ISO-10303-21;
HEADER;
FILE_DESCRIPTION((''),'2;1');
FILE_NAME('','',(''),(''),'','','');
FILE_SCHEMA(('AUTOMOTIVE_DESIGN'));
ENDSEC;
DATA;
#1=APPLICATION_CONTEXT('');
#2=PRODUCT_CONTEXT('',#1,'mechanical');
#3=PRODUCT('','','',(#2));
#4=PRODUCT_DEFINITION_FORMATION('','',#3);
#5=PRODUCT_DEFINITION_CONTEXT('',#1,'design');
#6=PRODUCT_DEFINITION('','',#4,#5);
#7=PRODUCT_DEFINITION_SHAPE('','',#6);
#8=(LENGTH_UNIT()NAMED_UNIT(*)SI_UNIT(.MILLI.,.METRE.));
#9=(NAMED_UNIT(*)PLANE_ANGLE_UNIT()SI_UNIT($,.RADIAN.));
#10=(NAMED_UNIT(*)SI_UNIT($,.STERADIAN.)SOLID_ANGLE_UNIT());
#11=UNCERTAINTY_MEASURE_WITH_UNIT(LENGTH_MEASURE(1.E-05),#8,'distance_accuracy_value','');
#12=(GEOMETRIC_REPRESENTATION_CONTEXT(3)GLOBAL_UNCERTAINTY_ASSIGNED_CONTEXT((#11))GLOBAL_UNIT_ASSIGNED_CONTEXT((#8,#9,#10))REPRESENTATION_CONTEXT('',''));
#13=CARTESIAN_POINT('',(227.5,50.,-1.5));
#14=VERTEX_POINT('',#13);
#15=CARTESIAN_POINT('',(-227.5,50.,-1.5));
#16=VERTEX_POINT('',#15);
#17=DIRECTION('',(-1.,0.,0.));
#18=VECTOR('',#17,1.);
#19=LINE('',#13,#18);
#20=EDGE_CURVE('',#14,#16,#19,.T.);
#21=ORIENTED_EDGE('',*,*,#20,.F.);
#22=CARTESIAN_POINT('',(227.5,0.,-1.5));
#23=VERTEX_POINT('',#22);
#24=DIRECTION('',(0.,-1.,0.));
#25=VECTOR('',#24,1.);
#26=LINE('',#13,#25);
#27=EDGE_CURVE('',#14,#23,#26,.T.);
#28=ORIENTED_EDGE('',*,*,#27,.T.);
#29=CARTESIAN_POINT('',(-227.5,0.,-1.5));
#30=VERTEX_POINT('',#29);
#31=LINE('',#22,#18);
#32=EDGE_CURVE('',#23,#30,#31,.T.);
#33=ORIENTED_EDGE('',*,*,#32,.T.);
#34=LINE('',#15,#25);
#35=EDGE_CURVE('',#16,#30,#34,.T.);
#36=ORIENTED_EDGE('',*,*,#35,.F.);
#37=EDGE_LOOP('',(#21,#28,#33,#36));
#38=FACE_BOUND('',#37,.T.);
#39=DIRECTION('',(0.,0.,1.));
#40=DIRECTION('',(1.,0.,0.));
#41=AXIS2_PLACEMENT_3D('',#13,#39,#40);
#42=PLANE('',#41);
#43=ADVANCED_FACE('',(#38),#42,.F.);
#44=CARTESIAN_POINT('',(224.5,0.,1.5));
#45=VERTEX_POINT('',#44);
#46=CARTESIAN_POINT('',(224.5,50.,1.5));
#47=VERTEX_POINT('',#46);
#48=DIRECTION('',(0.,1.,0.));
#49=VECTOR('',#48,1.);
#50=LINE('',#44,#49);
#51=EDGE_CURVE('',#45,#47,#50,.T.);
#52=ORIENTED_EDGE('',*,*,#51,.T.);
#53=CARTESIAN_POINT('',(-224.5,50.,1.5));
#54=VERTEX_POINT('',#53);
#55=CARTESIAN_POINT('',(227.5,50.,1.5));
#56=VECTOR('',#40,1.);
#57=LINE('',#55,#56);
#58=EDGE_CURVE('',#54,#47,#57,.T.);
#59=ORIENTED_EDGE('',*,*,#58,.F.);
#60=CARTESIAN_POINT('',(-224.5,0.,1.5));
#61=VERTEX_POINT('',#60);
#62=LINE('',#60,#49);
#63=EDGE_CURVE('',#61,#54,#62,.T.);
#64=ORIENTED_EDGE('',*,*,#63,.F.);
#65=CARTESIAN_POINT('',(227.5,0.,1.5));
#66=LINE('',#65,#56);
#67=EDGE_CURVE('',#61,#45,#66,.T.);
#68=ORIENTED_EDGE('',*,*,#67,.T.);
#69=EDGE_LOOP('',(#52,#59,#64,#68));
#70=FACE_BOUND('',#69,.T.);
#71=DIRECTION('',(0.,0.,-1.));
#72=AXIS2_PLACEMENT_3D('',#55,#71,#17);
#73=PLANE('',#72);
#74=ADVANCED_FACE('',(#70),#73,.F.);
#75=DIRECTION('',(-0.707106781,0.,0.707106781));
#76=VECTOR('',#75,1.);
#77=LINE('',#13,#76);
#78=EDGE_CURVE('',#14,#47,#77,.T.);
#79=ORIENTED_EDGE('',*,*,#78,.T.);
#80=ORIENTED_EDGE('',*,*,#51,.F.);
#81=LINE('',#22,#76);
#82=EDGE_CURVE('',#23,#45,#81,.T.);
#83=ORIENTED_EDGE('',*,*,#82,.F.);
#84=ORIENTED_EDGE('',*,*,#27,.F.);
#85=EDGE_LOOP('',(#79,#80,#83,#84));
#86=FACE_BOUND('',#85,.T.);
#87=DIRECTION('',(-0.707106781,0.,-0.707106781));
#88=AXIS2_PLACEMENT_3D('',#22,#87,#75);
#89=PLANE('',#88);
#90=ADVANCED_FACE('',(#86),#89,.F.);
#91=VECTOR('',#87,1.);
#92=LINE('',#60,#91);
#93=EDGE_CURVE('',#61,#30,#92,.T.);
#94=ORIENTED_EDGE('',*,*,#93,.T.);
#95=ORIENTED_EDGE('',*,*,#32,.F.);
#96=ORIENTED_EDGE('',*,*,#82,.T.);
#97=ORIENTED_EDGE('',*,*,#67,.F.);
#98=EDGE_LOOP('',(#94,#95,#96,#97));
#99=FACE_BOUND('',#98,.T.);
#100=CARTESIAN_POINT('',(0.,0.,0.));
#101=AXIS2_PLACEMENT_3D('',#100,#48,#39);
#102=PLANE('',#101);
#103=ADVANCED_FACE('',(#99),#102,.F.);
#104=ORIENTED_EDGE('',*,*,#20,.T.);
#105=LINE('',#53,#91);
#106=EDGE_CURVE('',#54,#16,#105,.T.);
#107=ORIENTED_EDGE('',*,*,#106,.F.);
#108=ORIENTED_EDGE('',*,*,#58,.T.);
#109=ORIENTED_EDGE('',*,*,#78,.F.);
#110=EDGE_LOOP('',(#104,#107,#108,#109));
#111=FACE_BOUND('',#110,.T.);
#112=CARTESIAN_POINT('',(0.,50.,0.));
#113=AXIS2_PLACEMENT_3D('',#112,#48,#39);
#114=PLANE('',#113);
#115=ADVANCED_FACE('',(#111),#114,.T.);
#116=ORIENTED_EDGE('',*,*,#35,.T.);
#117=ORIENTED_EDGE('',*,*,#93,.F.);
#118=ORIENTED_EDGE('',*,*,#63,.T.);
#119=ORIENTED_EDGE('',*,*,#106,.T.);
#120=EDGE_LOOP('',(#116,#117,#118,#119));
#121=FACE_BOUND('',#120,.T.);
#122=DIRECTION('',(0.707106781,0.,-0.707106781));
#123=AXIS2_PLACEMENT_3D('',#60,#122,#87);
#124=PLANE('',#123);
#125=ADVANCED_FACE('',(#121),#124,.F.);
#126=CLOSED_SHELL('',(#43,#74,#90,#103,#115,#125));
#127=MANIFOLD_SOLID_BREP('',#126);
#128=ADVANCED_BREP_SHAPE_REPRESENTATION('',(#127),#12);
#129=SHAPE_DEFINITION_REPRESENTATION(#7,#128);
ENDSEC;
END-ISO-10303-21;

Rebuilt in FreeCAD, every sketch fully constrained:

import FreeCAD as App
import Part
import Sketcher
from FreeCAD import Vector

doc = App.newDocument("Part")
params = doc.addObject("Spreadsheet::Sheet", "Params")
for row, (alias, value) in enumerate([
    ("sketch1_width", "455 mm"),
    ("sketch1_height", "3 mm"),
    ("pad1_length", "50 mm"),
    ("sketch2_width", "3 mm"),
], start=1):
    params.set(f"A{row}", alias)
    params.set(f"B{row}", "=" + value)
    params.setAlias(f"B{row}", alias)

body = doc.addObject("PartDesign::Body", "Body")

# Sketch on XZ plane
sketch1 = body.newObject("Sketcher::SketchObject", "Sketch")
sketch1.AttachmentSupport = (doc.getObject("XZ_Plane"), [""])
sketch1.MapMode = "FlatFace"
sketch1.addGeometry([
    Part.LineSegment(Vector(-227.5, -1.5, 0), Vector(-227.5, 1.5, 0)),
    Part.LineSegment(Vector(-227.5, 1.5, 0), Vector(227.5, 1.5, 0)),
    Part.LineSegment(Vector(227.5, 1.5, 0), Vector(227.5, -1.5, 0)),
    Part.LineSegment(Vector(227.5, -1.5, 0), Vector(-227.5, -1.5, 0)),
], False)
sketch1.addConstraint([
    Sketcher.Constraint("Coincident", 0, 2, 1, 1),
    Sketcher.Constraint("Coincident", 1, 2, 2, 1),
    Sketcher.Constraint("Coincident", 2, 2, 3, 1),
    Sketcher.Constraint("Coincident", 3, 2, 0, 1),
    Sketcher.Constraint("Vertical", 0),
    Sketcher.Constraint("Horizontal", 1),
    Sketcher.Constraint("Vertical", 2),
    Sketcher.Constraint("Horizontal", 3),
    Sketcher.Constraint("Symmetric", 0, 2, 2, 2, -1, 1),
    Sketcher.Constraint("DistanceX", 1, 1, 1, 2, 455.0),
    Sketcher.Constraint("DistanceY", 0, 1, 0, 2, 3.0),
])
sketch1.setExpression("Constraints[9]", "Params.sketch1_width")
sketch1.setExpression("Constraints[10]", "Params.sketch1_height")
pad1 = body.newObject("PartDesign::Pad", "Pad")
pad1.Profile = sketch1
pad1.setExpression("Length", "Params.pad1_length")
pad1.Reversed = True

# Sketch on XZ plane
sketch2 = body.newObject("Sketcher::SketchObject", "Sketch001")
sketch2.AttachmentSupport = (doc.getObject("XZ_Plane"), [""])
sketch2.MapMode = "FlatFace"
sketch2.AttachmentOffset = App.Placement(Vector(0, 0, -50), App.Rotation())
sketch2.addGeometry([
    Part.LineSegment(Vector(-227.5, -1.5, 0), Vector(-227.5, 1.5, 0)),  # 0
    Part.LineSegment(Vector(-227.5, 1.5, 0), Vector(-224.5, 1.5, 0)),  # 1
    Part.LineSegment(Vector(-224.5, 1.5, 0), Vector(-227.5, -1.5, 0)),  # 2
    Part.LineSegment(Vector(227.5, 1.5, 0), Vector(227.5, -1.5, 0)),  # 3
    Part.LineSegment(Vector(227.5, -1.5, 0), Vector(224.5, 1.5, 0)),  # 4
    Part.LineSegment(Vector(224.5, 1.5, 0), Vector(227.5, 1.5, 0)),  # 5
], False)
sketch2.addConstraint([
    Sketcher.Constraint("Coincident", 0, 2, 1, 1),
    Sketcher.Constraint("Coincident", 1, 2, 2, 1),
    Sketcher.Constraint("Coincident", 2, 2, 0, 1),
    Sketcher.Constraint("Coincident", 3, 2, 4, 1),
    Sketcher.Constraint("Coincident", 4, 2, 5, 1),
    Sketcher.Constraint("Coincident", 5, 2, 3, 1),
    Sketcher.Constraint("Vertical", 0),
    Sketcher.Constraint("Horizontal", 1),
    Sketcher.Constraint("Vertical", 3),
    Sketcher.Constraint("Horizontal", 5),
    Sketcher.Constraint("Symmetric", 0, 2, 3, 2, -1, 1),
    Sketcher.Constraint("Symmetric", 1, 2, 4, 2, -2),
    Sketcher.Constraint("Perpendicular", 2, 4),
    Sketcher.Constraint("Horizontal", 2, 2, 3, 2),
    Sketcher.Constraint("DistanceX", 1, 1, 1, 2, 3.0),
    Sketcher.Constraint("DistanceX", 1, 2, 3, 2, 452.0),
])
sketch2.setExpression("Constraints[14]", "Params.sketch2_width")
pocket1 = body.newObject("PartDesign::Pocket", "Pocket")
pocket1.Profile = sketch2
pocket1.Type = "ThroughAll"
pocket1.Reversed = True

doc.recompute()
